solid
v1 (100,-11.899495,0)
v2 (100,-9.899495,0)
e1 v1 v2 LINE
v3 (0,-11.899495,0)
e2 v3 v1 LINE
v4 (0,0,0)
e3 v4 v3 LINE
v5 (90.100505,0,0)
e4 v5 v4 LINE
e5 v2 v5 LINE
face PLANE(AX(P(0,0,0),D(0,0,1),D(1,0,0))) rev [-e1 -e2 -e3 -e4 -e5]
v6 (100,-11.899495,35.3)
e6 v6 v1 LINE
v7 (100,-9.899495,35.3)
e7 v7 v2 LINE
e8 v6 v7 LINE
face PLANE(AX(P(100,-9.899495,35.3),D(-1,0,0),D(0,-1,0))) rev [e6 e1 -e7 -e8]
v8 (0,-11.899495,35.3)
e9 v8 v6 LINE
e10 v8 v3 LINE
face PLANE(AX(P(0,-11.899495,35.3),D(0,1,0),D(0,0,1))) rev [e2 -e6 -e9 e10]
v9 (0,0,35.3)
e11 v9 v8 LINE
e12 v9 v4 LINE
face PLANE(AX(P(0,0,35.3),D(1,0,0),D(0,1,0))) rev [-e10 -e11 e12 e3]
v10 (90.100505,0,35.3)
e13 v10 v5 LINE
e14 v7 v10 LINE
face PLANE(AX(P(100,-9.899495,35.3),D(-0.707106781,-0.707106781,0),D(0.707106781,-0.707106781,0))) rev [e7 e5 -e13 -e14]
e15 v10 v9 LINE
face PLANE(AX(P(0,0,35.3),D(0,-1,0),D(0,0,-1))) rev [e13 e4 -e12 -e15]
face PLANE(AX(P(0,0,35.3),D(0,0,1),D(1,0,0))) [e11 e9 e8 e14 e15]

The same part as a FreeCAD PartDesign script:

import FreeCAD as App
import Part
import Sketcher

V = App.Vector
Q = App.Units.Quantity


def add_polygon(sketch, points):
    """Adds a closed chain of lines whose ends are joined by coincident constraints."""
    first, n = sketch.GeometryCount, len(points)
    for a, b in zip(points, points[1:] + points[:1]):
        sketch.addGeometry(Part.LineSegment(App.Vector(*a, 0), App.Vector(*b, 0)), False)
    for i in range(n):
        sketch.addConstraint(Sketcher.Constraint("Coincident", first + i, 2, first + (i + 1) % n, 1))

doc = App.newDocument("Part")
body = doc.addObject("PartDesign::Body", "Body")

sketch1 = body.newObject("Sketcher::SketchObject", "Sketch")
sketch1.AttachmentSupport = (doc.getObject("XY_Plane"), [""])
sketch1.MapMode = "FlatFace"
add_polygon(sketch1, [(100, -9.9), (90.1, 0), (0, 0), (0, -11.9), (100, -11.9)])
sketch1.addConstraint([
    Sketcher.Constraint("Horizontal", 1),
    Sketcher.Constraint("Vertical", 2),
    Sketcher.Constraint("Horizontal", 3),
    Sketcher.Constraint("Vertical", 4),
    Sketcher.Constraint("Coincident", 1, 2, -1, 1),
    Sketcher.Constraint("DistanceX", 3, 1, 3, 2, 100.0),
    Sketcher.Constraint("DistanceY", 4, 1, 4, 2, 2.0),
    Sketcher.Constraint("Angle", 0, Q("135 deg")),
    Sketcher.Constraint("Distance", 0, 14.0),
])
pad1 = body.newObject("PartDesign::Pad", "Pad")
pad1.Profile = sketch1
pad1.Length = 35.3

doc.recompute()
